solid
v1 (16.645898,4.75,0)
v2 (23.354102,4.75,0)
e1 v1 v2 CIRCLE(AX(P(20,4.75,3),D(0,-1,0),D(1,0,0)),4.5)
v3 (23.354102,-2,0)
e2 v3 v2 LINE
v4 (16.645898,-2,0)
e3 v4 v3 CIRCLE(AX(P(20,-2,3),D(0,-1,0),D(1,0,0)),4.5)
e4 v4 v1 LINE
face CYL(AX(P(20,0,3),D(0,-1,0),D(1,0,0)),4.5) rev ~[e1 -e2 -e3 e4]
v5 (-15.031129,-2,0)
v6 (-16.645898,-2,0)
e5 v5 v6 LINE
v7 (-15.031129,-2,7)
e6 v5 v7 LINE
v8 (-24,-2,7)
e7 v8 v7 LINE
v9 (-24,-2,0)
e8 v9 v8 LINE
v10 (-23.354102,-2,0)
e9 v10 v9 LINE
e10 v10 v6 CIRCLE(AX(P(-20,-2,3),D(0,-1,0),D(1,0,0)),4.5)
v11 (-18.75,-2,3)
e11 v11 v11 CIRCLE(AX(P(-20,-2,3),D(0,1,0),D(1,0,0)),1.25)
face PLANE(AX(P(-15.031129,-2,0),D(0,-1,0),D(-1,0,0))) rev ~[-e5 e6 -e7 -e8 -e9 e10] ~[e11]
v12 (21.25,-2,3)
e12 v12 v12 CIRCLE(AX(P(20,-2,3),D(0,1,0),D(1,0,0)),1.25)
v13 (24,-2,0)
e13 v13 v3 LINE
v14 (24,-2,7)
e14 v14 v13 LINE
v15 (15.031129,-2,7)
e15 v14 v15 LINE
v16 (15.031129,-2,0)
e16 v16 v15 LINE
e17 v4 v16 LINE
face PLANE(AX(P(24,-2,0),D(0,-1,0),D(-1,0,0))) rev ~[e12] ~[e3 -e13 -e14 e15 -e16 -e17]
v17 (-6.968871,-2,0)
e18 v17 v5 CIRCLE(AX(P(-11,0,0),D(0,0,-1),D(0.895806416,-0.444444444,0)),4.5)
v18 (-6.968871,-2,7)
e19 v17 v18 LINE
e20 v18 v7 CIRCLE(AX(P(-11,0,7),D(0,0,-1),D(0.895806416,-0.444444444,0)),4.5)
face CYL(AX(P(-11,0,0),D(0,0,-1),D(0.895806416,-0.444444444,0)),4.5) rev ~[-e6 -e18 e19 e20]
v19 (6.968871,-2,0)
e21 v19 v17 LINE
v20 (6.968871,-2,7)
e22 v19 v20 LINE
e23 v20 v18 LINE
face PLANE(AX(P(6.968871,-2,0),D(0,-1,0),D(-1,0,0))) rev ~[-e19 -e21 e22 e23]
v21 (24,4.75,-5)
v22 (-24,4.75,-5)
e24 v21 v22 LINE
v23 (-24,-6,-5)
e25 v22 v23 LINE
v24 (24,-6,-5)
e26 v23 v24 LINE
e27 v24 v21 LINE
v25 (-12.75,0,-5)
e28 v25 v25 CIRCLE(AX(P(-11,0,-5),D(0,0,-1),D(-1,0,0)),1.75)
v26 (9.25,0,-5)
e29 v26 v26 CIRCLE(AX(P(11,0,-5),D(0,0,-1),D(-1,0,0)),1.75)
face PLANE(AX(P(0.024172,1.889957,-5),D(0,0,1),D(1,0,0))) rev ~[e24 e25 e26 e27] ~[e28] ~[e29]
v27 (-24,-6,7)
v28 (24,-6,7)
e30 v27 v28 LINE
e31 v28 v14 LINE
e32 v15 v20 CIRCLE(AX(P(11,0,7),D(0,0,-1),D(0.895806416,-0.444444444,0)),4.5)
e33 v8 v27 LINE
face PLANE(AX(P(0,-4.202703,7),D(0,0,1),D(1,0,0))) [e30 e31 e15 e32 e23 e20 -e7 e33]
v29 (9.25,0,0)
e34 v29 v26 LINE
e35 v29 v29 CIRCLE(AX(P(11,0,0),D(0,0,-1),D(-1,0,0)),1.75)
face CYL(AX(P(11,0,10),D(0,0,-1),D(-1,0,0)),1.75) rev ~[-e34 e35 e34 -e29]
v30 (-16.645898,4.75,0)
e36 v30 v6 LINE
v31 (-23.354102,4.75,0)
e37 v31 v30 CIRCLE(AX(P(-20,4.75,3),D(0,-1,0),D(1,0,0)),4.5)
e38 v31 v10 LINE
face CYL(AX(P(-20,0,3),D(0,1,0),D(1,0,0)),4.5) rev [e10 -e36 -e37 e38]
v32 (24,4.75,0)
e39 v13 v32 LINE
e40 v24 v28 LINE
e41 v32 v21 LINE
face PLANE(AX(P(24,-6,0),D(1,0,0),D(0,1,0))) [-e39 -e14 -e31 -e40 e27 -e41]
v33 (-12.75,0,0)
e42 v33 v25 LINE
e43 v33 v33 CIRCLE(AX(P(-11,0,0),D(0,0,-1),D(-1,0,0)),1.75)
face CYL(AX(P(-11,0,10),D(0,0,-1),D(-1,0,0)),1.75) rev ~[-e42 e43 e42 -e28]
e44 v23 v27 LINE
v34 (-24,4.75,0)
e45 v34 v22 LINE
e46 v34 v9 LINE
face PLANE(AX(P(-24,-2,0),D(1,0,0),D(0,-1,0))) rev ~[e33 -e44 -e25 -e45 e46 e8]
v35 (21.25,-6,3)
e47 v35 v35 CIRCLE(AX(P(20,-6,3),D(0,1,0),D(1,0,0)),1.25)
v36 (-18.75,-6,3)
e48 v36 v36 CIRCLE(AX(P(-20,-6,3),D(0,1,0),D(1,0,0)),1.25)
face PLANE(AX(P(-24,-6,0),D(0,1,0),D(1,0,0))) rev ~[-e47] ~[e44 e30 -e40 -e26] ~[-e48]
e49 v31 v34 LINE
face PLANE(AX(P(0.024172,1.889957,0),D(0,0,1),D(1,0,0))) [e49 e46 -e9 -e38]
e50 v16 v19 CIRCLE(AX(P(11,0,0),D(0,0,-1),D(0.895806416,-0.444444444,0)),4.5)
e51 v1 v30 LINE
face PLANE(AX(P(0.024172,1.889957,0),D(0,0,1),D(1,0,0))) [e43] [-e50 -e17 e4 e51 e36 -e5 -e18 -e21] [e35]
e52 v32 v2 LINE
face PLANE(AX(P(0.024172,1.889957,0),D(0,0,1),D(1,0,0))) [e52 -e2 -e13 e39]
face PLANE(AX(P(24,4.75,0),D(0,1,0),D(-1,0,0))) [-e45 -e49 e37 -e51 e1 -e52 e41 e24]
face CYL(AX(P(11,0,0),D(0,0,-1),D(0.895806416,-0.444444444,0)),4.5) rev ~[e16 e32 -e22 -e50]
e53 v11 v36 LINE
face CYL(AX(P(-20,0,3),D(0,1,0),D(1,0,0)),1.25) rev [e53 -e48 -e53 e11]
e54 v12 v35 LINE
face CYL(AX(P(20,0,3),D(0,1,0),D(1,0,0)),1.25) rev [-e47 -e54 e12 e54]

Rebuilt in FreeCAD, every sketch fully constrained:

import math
import FreeCAD as App
import Part
import Sketcher

V = App.Vector


def add_polygon(sketch, points):
    """Adds a closed chain of lines whose ends are joined by coincident constraints."""
    first, n = sketch.GeometryCount, len(points)
    for a, b in zip(points, points[1:] + points[:1]):
        sketch.addGeometry(Part.LineSegment(App.Vector(*a, 0), App.Vector(*b, 0)), False)
    for i in range(n):
        sketch.addConstraint(Sketcher.Constraint("Coincident", first + i, 2, first + (i + 1) % n, 1))

doc = App.newDocument("Part")
params = doc.addObject("Spreadsheet::Sheet", "Params")
for row, (alias, value) in enumerate([
    ("sketch1_width", "48 mm"),
    ("sketch1_height", "10.75 mm"),
    ("pad1_length", "5 mm"),
    ("sketch2_radius", "4.5 mm"),
    ("sketch2_width", "48 mm"),
    ("sketch2_height", "4 mm"),
    ("pad2_length", "7 mm"),
    ("sketch3_diameter", "3.5 mm"),
    ("hole_diameter", "3.5 mm"),
    ("hole_depth", "10 mm"),
    ("sketch4_diameter", "9 mm"),
    ("sketch4_diameter2", "2.5 mm"),
    ("pocket1_length", "6.4 mm"),
    ("pocket1_length2", "2 mm"),
    ("sketch5_diameter", "2.5 mm"),
    ("pocket2_length", "25 mm"),
], start=1):
    params.set(f"A{row}", alias)
    params.set(f"B{row}", "=" + value)
    params.setAlias(f"B{row}", alias)

body = doc.addObject("PartDesign::Body", "Body")

# Sketch on XY plane
sketch1 = body.newObject("Sketcher::SketchObject", "Sketch")
sketch1.AttachmentSupport = (doc.getObject("XY_Plane"), [""])
sketch1.MapMode = "FlatFace"
add_polygon(sketch1, [(24, 5), (-24, 5), (-24, -6), (24, -6)])  # lines 0-3
sketch1.addConstraint([
    Sketcher.Constraint("Horizontal", 0),
    Sketcher.Constraint("Vertical", 1),
    Sketcher.Constraint("Horizontal", 2),
    Sketcher.Constraint("Vertical", 3),
    Sketcher.Constraint("DistanceX", 0, 2, 0, 1, 48.0),
    Sketcher.Constraint("DistanceX", 0, 2, -1, 1, 24.0),
    Sketcher.Constraint("DistanceY", 1, 2, -1, 1, 6.0),
    Sketcher.Constraint("DistanceY", 1, 2, 1, 1, 10.75),
])
sketch1.setExpression("Constraints[8]", "Params.sketch1_width")
sketch1.setExpression("Constraints[11]", "Params.sketch1_height")
pad1 = body.newObject("PartDesign::Pad", "Pad")
pad1.Profile = sketch1
pad1.setExpression("Length", "Params.pad1_length")
pad1.Reversed = True

# Sketch on XY plane
sketch2 = body.newObject("Sketcher::SketchObject", "Sketch001")
sketch2.AttachmentSupport = (doc.getObject("XY_Plane"), [""])
sketch2.MapMode = "FlatFace"
sketch2.addGeometry([
    Part.LineSegment(V(-15, -2, 0), V(-24, -2, 0)),  # 0
    Part.LineSegment(V(-24, -2, 0), V(-24, -6, 0)),  # 1
    Part.LineSegment(V(-24, -6, 0), V(24, -6, 0)),  # 2
    Part.LineSegment(V(24, -6, 0), V(24, -2, 0)),  # 3
    Part.LineSegment(V(24, -2, 0), V(15, -2, 0)),  # 4
    Part.ArcOfCircle(Part.Circle(V(11, 0, 0), V(0, 0, 1), 4.5), math.radians(-154), math.radians(-26)),  # 5
    Part.LineSegment(V(7, -2, 0), V(-7, -2, 0)),  # 6
    Part.ArcOfCircle(Part.Circle(V(-11, 0, 0), V(0, 0, 1), 4.5), math.radians(-154), math.radians(-26)),  # 7
], False)
sketch2.addConstraint([
    Sketcher.Constraint("Coincident", 0, 2, 1, 1),
    Sketcher.Constraint("Coincident", 1, 2, 2, 1),
    Sketcher.Constraint("Coincident", 2, 2, 3, 1),
    Sketcher.Constraint("Coincident", 3, 2, 4, 1),
    Sketcher.Constraint("Coincident", 4, 2, 5, 2),
    Sketcher.Constraint("Coincident", 5, 1, 6, 1),
    Sketcher.Constraint("Coincident", 6, 2, 7, 2),
    Sketcher.Constraint("Coincident", 7, 1, 0, 1),
    Sketcher.Constraint("Horizontal", 0),
    Sketcher.Constraint("Vertical", 1),
    Sketcher.Constraint("Horizontal", 2),
    Sketcher.Constraint("Vertical", 3),
    Sketcher.Constraint("Horizontal", 4),
    Sketcher.Constraint("Horizontal", 6),
    Sketcher.Constraint("Equal", 5, 7),
    Sketcher.Constraint("Symmetric", 5, 3, 7, 3, -1, 1),
    Sketcher.Constraint("Symmetric", 0, 2, 3, 2, -2),
    Sketcher.Constraint("PointOnObject", 5, 3, -1),
    Sketcher.Constraint("Horizontal", 4, 2, 5, 1),
    Sketcher.Constraint("Radius", 5, 4.5),
    Sketcher.Constraint("DistanceX", 2, 1, 2, 2, 48.0),
    Sketcher.Constraint("DistanceY", 1, 2, 1, 1, 4.0),
    Sketcher.Constraint("DistanceX", -1, 1, 5, 3, 11.0),
    Sketcher.Constraint("DistanceY", 0, 2, -1, 1, 2.0),
])
sketch2.setExpression("Constraints[19]", "Params.sketch2_radius")
sketch2.setExpression("Constraints[20]", "Params.sketch2_width")
sketch2.setExpression("Constraints[21]", "Params.sketch2_height")
pad2 = body.newObject("PartDesign::Pad", "Pad001")
pad2.Profile = sketch2
pad2.setExpression("Length", "Params.pad2_length")

# Sketch on XY plane
sketch3 = body.newObject("Sketcher::SketchObject", "Sketch002")
sketch3.AttachmentSupport = (doc.getObject("XY_Plane"), [""])
sketch3.MapMode = "FlatFace"
sketch3.addGeometry([
    Part.Circle(V(-11, 0, 0), V(0, 0, 1), 1.8),
    Part.Circle(V(11, 0, 0), V(0, 0, 1), 1.8),
], False)
sketch3.addConstraint([
    Sketcher.Constraint("Equal", 0, 1),
    Sketcher.Constraint("Symmetric", 0, 3, 1, 3, -1, 1),
    Sketcher.Constraint("PointOnObject", 0, 3, -1),
    Sketcher.Constraint("Diameter", 0, 3.5),
    Sketcher.Constraint("DistanceX", 0, 3, -1, 1, 11.0),
])
sketch3.setExpression("Constraints[3]", "Params.sketch3_diameter")
doc.recompute()
hole = body.newObject("PartDesign::Hole", "Hole")
hole.Profile = sketch3
hole.ThreadType = "None"
hole.setExpression("Diameter", "Params.hole_diameter")
hole.DepthType = "Dimension"
hole.setExpression("Depth", "Params.hole_depth")
hole.DrillPoint = "Angled"
hole.DrillPointAngle = 118

# Sketch on XZ plane
sketch4 = body.newObject("Sketcher::SketchObject", "Sketch003")
sketch4.AttachmentSupport = (doc.getObject("XZ_Plane"), [""])
sketch4.MapMode = "FlatFace"
sketch4.addGeometry([
    Part.Circle(V(20, 3, 0), V(0, 0, 1), 4.5),
    Part.Circle(V(20, 3, 0), V(0, 0, 1), 1.2),
    Part.Circle(V(-20, 3, 0), V(0, 0, 1), 4.5),
    Part.Circle(V(-20, 3, 0), V(0, 0, 1), 1.2),
], False)
sketch4.addConstraint([
    Sketcher.Constraint("Coincident", 1, 3, 0, 3),
    Sketcher.Constraint("Coincident", 3, 3, 2, 3),
    Sketcher.Constraint("Equal", 0, 2),
    Sketcher.Constraint("Equal", 1, 3),
    Sketcher.Constraint("Symmetric", 0, 3, 2, 3, -2),
    Sketcher.Constraint("Diameter", 0, 9.0),
    Sketcher.Constraint("Diameter", 1, 2.5),
    Sketcher.Constraint("DistanceX", -1, 1, 0, 3, 20.0),
    Sketcher.Constraint("DistanceY", -1, 1, 0, 3, 3.0),
])
sketch4.setExpression("Constraints[5]", "Params.sketch4_diameter")
sketch4.setExpression("Constraints[6]", "Params.sketch4_diameter2")
pocket1 = body.newObject("PartDesign::Pocket", "Pocket")
pocket1.Profile = sketch4
pocket1.Type = "TwoLengths"
pocket1.setExpression("Length", "Params.pocket1_length")
pocket1.setExpression("Length2", "Params.pocket1_length2")

# Sketch on XZ plane
sketch5 = body.newObject("Sketcher::SketchObject", "Sketch004")
sketch5.AttachmentSupport = (doc.getObject("XZ_Plane"), [""])
sketch5.MapMode = "FlatFace"
sketch5.addGeometry([
    Part.Circle(V(-20, 3, 0), V(0, 0, 1), 1.2),
    Part.Circle(V(20, 3, 0), V(0, 0, 1), 1.2),
], False)
sketch5.addConstraint([
    Sketcher.Constraint("Equal", 0, 1),
    Sketcher.Constraint("Symmetric", 0, 3, 1, 3, -2),
    Sketcher.Constraint("Diameter", 0, 2.5),
    Sketcher.Constraint("DistanceX", 0, 3, -1, 1, 20.0),
    Sketcher.Constraint("DistanceY", -1, 1, 0, 3, 3.0),
])
sketch5.setExpression("Constraints[2]", "Params.sketch5_diameter")
pocket2 = body.newObject("PartDesign::Pocket", "Pocket001")
pocket2.Profile = sketch5
pocket2.setExpression("Length", "Params.pocket2_length")
pocket2.Reversed = True

doc.recompute()
